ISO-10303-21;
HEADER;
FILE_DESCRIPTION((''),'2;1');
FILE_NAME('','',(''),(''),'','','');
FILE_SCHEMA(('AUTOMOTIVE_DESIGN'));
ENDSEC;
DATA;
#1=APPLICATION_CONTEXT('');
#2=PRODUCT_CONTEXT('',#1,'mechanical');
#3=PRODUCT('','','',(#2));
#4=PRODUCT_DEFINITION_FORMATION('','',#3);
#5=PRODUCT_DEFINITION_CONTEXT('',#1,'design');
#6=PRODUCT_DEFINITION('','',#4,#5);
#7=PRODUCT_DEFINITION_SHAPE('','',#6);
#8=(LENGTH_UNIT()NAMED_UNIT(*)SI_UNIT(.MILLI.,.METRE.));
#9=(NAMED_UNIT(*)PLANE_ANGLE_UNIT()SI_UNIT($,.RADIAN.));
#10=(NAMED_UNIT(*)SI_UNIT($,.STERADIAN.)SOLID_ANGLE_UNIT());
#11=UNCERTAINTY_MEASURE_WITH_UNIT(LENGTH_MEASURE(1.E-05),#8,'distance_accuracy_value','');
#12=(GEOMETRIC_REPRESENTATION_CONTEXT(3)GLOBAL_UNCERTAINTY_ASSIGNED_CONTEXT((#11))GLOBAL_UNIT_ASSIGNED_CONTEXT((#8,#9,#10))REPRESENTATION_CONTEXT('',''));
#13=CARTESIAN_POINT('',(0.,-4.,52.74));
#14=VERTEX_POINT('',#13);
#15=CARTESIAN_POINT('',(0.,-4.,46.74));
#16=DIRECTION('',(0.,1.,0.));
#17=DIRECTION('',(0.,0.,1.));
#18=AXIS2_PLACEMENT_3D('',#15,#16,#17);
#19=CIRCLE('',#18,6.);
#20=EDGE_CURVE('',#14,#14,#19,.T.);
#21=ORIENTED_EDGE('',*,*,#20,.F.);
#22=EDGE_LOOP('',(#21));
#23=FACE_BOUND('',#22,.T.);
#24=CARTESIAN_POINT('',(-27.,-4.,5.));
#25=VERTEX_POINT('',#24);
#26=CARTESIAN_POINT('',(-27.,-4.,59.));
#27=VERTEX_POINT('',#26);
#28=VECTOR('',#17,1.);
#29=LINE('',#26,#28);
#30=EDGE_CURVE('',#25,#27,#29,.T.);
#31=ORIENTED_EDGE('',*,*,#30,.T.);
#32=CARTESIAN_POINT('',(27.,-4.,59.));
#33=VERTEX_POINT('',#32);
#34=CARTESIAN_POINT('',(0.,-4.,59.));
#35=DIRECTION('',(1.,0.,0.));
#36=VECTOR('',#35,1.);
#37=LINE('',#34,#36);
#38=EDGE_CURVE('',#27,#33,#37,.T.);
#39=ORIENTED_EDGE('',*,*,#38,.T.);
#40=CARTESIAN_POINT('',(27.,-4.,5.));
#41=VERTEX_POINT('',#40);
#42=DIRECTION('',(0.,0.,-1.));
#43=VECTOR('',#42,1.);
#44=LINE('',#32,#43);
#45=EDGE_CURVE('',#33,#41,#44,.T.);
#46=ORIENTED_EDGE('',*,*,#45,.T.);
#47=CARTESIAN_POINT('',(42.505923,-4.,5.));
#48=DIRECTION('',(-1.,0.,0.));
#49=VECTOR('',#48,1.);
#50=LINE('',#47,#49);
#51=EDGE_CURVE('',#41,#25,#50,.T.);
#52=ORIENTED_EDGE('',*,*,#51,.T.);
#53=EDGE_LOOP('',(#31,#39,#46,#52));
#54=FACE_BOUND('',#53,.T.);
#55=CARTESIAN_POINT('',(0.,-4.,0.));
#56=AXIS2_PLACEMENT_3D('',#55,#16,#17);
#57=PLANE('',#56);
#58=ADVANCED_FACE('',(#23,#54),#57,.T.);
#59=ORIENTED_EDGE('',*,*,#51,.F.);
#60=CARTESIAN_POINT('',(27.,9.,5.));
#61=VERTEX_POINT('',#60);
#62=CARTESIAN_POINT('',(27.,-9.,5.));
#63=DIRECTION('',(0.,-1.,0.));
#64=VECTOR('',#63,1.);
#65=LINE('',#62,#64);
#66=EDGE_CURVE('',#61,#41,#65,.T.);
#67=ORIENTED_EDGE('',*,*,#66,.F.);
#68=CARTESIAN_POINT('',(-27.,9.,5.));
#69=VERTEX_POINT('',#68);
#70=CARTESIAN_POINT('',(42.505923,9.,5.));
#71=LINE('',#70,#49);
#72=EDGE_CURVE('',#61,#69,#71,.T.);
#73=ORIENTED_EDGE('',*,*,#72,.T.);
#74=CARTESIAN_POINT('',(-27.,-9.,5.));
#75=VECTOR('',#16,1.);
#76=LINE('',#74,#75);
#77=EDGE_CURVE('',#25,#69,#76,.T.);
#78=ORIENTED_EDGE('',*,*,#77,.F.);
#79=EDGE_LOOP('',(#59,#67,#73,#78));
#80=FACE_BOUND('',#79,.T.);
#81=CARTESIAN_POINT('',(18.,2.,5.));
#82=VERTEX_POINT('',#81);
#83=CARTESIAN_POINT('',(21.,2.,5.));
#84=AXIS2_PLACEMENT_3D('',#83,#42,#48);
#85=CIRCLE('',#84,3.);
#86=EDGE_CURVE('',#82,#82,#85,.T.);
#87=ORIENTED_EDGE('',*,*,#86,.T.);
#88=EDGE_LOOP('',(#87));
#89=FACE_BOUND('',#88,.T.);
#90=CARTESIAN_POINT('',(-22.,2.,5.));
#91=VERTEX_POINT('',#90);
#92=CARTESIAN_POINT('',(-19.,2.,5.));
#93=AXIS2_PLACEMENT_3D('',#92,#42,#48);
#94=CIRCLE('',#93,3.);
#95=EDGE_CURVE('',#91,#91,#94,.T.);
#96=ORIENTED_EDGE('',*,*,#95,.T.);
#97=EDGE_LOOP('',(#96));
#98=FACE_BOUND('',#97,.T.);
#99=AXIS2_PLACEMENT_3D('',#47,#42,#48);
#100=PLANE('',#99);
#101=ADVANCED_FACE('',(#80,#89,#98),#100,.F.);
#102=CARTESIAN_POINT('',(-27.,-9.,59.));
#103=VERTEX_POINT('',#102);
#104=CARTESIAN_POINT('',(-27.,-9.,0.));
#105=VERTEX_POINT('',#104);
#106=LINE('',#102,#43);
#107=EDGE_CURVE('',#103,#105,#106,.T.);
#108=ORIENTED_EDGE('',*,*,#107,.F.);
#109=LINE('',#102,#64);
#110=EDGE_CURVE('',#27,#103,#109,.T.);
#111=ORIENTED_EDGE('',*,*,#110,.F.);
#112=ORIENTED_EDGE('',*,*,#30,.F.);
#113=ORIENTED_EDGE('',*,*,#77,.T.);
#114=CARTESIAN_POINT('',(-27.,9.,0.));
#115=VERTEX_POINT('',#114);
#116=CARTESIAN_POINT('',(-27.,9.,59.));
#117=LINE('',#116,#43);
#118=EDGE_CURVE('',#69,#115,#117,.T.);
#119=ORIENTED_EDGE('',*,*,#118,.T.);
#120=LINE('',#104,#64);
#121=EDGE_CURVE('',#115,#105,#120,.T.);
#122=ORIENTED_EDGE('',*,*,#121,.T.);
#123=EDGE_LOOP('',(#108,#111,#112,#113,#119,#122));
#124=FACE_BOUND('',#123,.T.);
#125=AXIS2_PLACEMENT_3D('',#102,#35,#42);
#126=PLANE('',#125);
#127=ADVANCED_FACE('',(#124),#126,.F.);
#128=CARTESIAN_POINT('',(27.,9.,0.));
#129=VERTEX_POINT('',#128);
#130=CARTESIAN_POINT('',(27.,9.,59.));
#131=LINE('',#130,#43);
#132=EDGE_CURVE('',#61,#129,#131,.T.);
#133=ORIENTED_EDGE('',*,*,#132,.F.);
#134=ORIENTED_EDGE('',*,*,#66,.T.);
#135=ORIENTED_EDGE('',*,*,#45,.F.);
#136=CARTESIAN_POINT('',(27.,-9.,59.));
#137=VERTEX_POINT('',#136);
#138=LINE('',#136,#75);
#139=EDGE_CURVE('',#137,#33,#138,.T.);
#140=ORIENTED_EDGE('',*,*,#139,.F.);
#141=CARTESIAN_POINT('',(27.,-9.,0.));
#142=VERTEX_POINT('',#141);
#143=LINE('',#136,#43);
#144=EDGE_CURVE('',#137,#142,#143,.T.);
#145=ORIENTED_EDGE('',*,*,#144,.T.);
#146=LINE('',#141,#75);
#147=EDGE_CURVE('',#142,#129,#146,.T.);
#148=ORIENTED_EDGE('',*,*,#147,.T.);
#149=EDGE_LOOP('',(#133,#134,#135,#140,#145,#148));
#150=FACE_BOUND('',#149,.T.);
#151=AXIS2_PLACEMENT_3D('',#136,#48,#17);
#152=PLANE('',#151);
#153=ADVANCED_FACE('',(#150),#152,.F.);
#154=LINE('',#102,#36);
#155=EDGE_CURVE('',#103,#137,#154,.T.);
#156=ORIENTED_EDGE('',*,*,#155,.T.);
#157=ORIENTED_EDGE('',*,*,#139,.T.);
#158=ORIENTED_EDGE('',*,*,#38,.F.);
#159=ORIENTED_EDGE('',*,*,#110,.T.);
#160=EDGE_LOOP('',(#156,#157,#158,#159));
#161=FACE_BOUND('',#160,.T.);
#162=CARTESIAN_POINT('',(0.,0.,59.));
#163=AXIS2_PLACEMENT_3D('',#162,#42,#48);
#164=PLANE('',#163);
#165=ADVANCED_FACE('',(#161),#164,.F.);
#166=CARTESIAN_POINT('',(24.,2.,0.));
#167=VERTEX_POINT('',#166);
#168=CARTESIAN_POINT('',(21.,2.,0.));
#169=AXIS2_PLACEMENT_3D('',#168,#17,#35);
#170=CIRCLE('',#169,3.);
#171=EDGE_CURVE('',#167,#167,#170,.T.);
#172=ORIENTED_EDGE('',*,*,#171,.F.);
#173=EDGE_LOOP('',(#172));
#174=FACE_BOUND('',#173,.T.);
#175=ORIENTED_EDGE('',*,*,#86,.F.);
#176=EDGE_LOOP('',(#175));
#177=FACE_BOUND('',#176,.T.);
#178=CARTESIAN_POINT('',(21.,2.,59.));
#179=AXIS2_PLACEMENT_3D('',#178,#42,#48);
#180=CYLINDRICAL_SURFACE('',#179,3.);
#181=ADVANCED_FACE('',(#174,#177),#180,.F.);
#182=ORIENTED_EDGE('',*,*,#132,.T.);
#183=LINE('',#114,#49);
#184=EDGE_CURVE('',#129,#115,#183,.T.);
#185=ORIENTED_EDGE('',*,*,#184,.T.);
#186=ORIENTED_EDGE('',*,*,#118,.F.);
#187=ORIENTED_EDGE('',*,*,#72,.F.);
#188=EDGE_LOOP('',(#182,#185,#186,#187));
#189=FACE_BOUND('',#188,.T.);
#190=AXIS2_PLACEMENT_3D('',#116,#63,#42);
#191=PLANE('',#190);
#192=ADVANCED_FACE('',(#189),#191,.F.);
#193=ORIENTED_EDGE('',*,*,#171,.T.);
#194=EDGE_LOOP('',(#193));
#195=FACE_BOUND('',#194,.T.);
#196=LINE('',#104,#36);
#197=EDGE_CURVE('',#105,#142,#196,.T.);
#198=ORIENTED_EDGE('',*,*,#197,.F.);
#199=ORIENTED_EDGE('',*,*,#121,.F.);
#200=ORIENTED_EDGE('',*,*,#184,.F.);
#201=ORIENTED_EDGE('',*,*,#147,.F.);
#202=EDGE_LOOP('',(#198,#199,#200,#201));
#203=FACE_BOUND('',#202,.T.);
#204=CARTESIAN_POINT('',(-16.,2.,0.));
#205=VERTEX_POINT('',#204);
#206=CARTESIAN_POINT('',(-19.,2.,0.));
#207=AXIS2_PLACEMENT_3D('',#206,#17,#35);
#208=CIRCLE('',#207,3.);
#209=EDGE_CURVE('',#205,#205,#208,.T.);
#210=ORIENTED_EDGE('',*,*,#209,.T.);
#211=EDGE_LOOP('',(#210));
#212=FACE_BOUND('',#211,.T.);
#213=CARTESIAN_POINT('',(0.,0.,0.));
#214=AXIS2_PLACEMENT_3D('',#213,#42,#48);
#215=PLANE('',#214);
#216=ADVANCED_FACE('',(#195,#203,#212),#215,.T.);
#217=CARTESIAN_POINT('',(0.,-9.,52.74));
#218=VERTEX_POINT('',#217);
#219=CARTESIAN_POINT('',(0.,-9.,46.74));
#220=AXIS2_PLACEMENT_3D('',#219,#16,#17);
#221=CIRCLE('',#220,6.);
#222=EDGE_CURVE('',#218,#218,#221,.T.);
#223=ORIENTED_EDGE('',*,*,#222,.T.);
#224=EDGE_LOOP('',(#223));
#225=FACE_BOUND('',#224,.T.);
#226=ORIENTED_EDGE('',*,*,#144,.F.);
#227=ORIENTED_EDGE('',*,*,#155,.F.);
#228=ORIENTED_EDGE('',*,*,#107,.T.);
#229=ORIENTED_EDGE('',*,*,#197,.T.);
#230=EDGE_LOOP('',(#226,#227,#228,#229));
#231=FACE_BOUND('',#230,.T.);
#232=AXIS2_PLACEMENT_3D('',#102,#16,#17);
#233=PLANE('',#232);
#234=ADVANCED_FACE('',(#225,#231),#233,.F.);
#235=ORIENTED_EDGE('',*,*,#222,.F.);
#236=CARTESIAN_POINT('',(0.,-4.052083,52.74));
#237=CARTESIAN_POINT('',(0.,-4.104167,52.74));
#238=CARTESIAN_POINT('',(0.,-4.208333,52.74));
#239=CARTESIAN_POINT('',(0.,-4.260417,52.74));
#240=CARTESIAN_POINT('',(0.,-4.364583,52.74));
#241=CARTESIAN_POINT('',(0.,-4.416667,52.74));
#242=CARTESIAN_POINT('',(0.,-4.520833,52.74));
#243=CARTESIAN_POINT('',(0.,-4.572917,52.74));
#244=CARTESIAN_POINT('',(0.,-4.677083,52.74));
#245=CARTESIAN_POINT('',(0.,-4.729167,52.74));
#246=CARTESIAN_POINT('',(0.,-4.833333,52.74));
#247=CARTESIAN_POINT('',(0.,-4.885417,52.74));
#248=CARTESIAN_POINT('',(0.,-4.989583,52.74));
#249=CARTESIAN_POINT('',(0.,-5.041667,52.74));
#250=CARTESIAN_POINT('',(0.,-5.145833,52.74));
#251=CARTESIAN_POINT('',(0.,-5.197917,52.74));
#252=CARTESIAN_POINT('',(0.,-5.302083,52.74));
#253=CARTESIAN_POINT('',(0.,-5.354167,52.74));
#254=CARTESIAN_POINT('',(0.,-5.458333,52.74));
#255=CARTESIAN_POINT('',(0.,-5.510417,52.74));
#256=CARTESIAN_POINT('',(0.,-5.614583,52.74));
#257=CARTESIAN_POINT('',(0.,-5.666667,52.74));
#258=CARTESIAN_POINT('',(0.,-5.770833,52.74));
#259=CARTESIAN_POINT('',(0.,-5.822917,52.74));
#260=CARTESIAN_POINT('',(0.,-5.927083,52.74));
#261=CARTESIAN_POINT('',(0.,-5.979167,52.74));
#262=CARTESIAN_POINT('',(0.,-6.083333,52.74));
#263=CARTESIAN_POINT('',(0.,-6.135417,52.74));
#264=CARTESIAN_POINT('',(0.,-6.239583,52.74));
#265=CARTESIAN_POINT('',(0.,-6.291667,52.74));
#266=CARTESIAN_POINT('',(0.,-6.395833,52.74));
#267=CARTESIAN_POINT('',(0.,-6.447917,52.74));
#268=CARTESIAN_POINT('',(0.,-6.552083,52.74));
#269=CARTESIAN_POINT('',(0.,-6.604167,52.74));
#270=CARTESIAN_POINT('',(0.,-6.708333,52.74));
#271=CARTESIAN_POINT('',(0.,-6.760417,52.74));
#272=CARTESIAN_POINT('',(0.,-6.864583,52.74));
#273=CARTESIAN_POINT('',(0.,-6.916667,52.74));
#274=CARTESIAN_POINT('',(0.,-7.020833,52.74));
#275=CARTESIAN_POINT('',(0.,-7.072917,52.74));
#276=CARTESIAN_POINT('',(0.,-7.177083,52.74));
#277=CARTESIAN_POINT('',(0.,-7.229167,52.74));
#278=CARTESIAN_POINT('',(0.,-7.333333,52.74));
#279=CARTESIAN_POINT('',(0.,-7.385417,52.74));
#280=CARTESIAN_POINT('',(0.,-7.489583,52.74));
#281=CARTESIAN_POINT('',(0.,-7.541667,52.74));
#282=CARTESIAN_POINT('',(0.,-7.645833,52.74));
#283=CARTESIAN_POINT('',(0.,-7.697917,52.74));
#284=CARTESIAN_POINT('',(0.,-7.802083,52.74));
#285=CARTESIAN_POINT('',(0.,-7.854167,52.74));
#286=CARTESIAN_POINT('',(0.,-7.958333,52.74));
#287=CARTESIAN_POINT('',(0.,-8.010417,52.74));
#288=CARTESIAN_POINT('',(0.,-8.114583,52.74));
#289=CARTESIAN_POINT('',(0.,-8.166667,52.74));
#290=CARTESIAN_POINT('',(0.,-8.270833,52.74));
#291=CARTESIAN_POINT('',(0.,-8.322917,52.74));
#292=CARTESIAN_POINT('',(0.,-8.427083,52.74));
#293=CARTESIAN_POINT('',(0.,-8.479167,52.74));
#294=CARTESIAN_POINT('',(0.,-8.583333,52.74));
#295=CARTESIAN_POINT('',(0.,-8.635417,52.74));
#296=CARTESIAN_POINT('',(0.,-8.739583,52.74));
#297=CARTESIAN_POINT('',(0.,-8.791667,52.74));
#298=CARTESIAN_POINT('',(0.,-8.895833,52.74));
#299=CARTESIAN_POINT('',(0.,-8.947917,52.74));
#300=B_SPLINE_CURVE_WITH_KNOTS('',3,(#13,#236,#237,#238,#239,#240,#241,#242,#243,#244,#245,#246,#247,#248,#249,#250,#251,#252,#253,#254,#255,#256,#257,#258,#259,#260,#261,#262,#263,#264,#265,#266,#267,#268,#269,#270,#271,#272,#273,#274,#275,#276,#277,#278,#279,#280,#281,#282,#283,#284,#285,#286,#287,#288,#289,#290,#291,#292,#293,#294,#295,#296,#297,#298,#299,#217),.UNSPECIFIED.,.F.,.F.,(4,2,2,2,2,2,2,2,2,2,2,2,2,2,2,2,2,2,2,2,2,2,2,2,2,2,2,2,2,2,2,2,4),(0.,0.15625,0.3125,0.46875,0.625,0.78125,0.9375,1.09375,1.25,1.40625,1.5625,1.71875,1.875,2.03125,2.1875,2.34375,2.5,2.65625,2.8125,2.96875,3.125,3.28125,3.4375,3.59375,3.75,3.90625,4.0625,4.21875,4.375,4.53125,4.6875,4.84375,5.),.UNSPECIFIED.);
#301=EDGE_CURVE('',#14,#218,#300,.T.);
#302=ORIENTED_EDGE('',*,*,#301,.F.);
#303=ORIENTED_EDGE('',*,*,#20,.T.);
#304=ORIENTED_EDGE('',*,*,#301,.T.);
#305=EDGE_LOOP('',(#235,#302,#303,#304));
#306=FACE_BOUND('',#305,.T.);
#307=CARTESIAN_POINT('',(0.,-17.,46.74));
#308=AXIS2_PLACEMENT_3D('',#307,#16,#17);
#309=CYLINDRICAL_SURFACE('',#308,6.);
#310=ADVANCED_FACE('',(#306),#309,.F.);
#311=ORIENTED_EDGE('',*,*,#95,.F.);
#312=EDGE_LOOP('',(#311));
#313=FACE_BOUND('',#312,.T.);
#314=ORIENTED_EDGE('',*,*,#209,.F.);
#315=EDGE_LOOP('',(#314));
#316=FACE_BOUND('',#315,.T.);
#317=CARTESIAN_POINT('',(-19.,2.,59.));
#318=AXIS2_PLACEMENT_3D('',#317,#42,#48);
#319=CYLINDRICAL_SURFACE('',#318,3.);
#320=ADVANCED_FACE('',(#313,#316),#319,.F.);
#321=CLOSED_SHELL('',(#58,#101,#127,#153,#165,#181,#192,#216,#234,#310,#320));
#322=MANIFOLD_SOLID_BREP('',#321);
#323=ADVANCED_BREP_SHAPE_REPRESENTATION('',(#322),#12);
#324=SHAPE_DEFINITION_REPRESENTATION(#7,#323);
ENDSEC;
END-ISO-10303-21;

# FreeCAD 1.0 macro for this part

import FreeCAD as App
import Part
import Sketcher
from FreeCAD import Vector
Q = App.Units.Quantity


def add_polygon(sketch, points):
    """Adds a closed chain of lines whose ends are joined by coincident constraints."""
    first, n = sketch.GeometryCount, len(points)
    for a, b in zip(points, points[1:] + points[:1]):
        sketch.addGeometry(Part.LineSegment(App.Vector(*a, 0), App.Vector(*b, 0)), False)
    for i in range(n):
        sketch.addConstraint(Sketcher.Constraint("Coincident", first + i, 2, first + (i + 1) % n, 1))

doc = App.newDocument("Part")
body = doc.addObject("PartDesign::Body", "Body")

# Sketch on XY plane
sketch1 = doc.addObject("Sketcher::SketchObject", "Sketch")
body.addObject(sketch1)
sketch1.AttachmentSupport = (doc.XY_Plane, [""])
sketch1.MapMode = "FlatFace"
add_polygon(sketch1, [(-27, 9), (-27, -9), (27, -9), (27, 9)])  # lines 0-3
sketch1.addGeometry(Part.Circle(Vector(-19, 2, 0), Vector(0, 0, 1), 3), False)  # 4
sketch1.addGeometry(Part.Circle(Vector(21, 2, 0), Vector(0, 0, 1), 3), False)  # 5
sketch1.addConstraint([
    Sketcher.Constraint("Vertical", 0),
    Sketcher.Constraint("Horizontal", 1),
    Sketcher.Constraint("Vertical", 2),
    Sketcher.Constraint("Horizontal", 3),
    Sketcher.Constraint("Equal", 4, 5),
    Sketcher.Constraint("Symmetric", 0, 2, 2, 2, -1, 1),
    Sketcher.Constraint("Horizontal", 4, 3, 5, 3),
    Sketcher.Constraint("Diameter", 4, Q("6 mm")),
    Sketcher.Constraint("DistanceX", 1, 1, 1, 2, Q("54 mm")),
    Sketcher.Constraint("DistanceY", 0, 2, 0, 1, Q("18 mm")),
    Sketcher.Constraint("DistanceX", 4, 3, -1, 1, Q("19 mm")),
    Sketcher.Constraint("DistanceY", -1, 1, 4, 3, Q("2 mm")),
    Sketcher.Constraint("DistanceX", -1, 1, 5, 3, Q("21 mm")),
])
pad1 = doc.addObject("PartDesign::Pad", "Pad")
body.addObject(pad1)
pad1.Profile = sketch1
pad1.Length = 59

# Sketch on XZ plane
sketch2 = doc.addObject("Sketcher::SketchObject", "Sketch001")
body.addObject(sketch2)
sketch2.AttachmentSupport = (doc.XZ_Plane, [""])
sketch2.MapMode = "FlatFace"
sketch2.AttachmentOffset = App.Placement(Vector(0, 0, -9), App.Rotation())
add_polygon(sketch2, [(-47, 5), (-47, 80), (43, 80), (43, 5)])  # lines 0-3
sketch2.addConstraint([
    Sketcher.Constraint("Vertical", 0),
    Sketcher.Constraint("Horizontal", 1),
    Sketcher.Constraint("Vertical", 2),
    Sketcher.Constraint("Horizontal", 3),
    Sketcher.Constraint("DistanceY", -1, 1, 2, 2, Q("5 mm")),
    Sketcher.Constraint("DistanceX", 1, 1, 1, 2, Q("89.885876 mm")),
    Sketcher.Constraint("DistanceY", 0, 1, 0, 2, Q("74.564815 mm")),
    Sketcher.Constraint("DistanceX", 0, 2, -1, 1, Q("47.379953 mm")),
])
pocket1 = doc.addObject("PartDesign::Pocket", "Pocket")
body.addObject(pocket1)
pocket1.Profile = sketch2
pocket1.Length = 13
pocket1.Reversed = True

# Sketch on XZ plane
sketch3 = doc.addObject("Sketcher::SketchObject", "Sketch002")
body.addObject(sketch3)
sketch3.AttachmentSupport = (doc.XZ_Plane, [""])
sketch3.MapMode = "FlatFace"
sketch3.AttachmentOffset = App.Placement(Vector(0, 0, 4), App.Rotation())
sketch3.addGeometry(Part.Circle(Vector(0, 47, 0), Vector(0, 0, 1), 6), False)
sketch3.addConstraint([
    Sketcher.Constraint("PointOnObject", 0, 3, -2),
    Sketcher.Constraint("Diameter", 0, Q("12 mm")),
    Sketcher.Constraint("DistanceY", -1, 1, 0, 3, Q("46.74 mm")),
])
pocket2 = doc.addObject("PartDesign::Pocket", "Pocket001")
body.addObject(pocket2)
pocket2.Profile = sketch3
pocket2.Length = 13
pocket2.Reversed = True

doc.recompute()
